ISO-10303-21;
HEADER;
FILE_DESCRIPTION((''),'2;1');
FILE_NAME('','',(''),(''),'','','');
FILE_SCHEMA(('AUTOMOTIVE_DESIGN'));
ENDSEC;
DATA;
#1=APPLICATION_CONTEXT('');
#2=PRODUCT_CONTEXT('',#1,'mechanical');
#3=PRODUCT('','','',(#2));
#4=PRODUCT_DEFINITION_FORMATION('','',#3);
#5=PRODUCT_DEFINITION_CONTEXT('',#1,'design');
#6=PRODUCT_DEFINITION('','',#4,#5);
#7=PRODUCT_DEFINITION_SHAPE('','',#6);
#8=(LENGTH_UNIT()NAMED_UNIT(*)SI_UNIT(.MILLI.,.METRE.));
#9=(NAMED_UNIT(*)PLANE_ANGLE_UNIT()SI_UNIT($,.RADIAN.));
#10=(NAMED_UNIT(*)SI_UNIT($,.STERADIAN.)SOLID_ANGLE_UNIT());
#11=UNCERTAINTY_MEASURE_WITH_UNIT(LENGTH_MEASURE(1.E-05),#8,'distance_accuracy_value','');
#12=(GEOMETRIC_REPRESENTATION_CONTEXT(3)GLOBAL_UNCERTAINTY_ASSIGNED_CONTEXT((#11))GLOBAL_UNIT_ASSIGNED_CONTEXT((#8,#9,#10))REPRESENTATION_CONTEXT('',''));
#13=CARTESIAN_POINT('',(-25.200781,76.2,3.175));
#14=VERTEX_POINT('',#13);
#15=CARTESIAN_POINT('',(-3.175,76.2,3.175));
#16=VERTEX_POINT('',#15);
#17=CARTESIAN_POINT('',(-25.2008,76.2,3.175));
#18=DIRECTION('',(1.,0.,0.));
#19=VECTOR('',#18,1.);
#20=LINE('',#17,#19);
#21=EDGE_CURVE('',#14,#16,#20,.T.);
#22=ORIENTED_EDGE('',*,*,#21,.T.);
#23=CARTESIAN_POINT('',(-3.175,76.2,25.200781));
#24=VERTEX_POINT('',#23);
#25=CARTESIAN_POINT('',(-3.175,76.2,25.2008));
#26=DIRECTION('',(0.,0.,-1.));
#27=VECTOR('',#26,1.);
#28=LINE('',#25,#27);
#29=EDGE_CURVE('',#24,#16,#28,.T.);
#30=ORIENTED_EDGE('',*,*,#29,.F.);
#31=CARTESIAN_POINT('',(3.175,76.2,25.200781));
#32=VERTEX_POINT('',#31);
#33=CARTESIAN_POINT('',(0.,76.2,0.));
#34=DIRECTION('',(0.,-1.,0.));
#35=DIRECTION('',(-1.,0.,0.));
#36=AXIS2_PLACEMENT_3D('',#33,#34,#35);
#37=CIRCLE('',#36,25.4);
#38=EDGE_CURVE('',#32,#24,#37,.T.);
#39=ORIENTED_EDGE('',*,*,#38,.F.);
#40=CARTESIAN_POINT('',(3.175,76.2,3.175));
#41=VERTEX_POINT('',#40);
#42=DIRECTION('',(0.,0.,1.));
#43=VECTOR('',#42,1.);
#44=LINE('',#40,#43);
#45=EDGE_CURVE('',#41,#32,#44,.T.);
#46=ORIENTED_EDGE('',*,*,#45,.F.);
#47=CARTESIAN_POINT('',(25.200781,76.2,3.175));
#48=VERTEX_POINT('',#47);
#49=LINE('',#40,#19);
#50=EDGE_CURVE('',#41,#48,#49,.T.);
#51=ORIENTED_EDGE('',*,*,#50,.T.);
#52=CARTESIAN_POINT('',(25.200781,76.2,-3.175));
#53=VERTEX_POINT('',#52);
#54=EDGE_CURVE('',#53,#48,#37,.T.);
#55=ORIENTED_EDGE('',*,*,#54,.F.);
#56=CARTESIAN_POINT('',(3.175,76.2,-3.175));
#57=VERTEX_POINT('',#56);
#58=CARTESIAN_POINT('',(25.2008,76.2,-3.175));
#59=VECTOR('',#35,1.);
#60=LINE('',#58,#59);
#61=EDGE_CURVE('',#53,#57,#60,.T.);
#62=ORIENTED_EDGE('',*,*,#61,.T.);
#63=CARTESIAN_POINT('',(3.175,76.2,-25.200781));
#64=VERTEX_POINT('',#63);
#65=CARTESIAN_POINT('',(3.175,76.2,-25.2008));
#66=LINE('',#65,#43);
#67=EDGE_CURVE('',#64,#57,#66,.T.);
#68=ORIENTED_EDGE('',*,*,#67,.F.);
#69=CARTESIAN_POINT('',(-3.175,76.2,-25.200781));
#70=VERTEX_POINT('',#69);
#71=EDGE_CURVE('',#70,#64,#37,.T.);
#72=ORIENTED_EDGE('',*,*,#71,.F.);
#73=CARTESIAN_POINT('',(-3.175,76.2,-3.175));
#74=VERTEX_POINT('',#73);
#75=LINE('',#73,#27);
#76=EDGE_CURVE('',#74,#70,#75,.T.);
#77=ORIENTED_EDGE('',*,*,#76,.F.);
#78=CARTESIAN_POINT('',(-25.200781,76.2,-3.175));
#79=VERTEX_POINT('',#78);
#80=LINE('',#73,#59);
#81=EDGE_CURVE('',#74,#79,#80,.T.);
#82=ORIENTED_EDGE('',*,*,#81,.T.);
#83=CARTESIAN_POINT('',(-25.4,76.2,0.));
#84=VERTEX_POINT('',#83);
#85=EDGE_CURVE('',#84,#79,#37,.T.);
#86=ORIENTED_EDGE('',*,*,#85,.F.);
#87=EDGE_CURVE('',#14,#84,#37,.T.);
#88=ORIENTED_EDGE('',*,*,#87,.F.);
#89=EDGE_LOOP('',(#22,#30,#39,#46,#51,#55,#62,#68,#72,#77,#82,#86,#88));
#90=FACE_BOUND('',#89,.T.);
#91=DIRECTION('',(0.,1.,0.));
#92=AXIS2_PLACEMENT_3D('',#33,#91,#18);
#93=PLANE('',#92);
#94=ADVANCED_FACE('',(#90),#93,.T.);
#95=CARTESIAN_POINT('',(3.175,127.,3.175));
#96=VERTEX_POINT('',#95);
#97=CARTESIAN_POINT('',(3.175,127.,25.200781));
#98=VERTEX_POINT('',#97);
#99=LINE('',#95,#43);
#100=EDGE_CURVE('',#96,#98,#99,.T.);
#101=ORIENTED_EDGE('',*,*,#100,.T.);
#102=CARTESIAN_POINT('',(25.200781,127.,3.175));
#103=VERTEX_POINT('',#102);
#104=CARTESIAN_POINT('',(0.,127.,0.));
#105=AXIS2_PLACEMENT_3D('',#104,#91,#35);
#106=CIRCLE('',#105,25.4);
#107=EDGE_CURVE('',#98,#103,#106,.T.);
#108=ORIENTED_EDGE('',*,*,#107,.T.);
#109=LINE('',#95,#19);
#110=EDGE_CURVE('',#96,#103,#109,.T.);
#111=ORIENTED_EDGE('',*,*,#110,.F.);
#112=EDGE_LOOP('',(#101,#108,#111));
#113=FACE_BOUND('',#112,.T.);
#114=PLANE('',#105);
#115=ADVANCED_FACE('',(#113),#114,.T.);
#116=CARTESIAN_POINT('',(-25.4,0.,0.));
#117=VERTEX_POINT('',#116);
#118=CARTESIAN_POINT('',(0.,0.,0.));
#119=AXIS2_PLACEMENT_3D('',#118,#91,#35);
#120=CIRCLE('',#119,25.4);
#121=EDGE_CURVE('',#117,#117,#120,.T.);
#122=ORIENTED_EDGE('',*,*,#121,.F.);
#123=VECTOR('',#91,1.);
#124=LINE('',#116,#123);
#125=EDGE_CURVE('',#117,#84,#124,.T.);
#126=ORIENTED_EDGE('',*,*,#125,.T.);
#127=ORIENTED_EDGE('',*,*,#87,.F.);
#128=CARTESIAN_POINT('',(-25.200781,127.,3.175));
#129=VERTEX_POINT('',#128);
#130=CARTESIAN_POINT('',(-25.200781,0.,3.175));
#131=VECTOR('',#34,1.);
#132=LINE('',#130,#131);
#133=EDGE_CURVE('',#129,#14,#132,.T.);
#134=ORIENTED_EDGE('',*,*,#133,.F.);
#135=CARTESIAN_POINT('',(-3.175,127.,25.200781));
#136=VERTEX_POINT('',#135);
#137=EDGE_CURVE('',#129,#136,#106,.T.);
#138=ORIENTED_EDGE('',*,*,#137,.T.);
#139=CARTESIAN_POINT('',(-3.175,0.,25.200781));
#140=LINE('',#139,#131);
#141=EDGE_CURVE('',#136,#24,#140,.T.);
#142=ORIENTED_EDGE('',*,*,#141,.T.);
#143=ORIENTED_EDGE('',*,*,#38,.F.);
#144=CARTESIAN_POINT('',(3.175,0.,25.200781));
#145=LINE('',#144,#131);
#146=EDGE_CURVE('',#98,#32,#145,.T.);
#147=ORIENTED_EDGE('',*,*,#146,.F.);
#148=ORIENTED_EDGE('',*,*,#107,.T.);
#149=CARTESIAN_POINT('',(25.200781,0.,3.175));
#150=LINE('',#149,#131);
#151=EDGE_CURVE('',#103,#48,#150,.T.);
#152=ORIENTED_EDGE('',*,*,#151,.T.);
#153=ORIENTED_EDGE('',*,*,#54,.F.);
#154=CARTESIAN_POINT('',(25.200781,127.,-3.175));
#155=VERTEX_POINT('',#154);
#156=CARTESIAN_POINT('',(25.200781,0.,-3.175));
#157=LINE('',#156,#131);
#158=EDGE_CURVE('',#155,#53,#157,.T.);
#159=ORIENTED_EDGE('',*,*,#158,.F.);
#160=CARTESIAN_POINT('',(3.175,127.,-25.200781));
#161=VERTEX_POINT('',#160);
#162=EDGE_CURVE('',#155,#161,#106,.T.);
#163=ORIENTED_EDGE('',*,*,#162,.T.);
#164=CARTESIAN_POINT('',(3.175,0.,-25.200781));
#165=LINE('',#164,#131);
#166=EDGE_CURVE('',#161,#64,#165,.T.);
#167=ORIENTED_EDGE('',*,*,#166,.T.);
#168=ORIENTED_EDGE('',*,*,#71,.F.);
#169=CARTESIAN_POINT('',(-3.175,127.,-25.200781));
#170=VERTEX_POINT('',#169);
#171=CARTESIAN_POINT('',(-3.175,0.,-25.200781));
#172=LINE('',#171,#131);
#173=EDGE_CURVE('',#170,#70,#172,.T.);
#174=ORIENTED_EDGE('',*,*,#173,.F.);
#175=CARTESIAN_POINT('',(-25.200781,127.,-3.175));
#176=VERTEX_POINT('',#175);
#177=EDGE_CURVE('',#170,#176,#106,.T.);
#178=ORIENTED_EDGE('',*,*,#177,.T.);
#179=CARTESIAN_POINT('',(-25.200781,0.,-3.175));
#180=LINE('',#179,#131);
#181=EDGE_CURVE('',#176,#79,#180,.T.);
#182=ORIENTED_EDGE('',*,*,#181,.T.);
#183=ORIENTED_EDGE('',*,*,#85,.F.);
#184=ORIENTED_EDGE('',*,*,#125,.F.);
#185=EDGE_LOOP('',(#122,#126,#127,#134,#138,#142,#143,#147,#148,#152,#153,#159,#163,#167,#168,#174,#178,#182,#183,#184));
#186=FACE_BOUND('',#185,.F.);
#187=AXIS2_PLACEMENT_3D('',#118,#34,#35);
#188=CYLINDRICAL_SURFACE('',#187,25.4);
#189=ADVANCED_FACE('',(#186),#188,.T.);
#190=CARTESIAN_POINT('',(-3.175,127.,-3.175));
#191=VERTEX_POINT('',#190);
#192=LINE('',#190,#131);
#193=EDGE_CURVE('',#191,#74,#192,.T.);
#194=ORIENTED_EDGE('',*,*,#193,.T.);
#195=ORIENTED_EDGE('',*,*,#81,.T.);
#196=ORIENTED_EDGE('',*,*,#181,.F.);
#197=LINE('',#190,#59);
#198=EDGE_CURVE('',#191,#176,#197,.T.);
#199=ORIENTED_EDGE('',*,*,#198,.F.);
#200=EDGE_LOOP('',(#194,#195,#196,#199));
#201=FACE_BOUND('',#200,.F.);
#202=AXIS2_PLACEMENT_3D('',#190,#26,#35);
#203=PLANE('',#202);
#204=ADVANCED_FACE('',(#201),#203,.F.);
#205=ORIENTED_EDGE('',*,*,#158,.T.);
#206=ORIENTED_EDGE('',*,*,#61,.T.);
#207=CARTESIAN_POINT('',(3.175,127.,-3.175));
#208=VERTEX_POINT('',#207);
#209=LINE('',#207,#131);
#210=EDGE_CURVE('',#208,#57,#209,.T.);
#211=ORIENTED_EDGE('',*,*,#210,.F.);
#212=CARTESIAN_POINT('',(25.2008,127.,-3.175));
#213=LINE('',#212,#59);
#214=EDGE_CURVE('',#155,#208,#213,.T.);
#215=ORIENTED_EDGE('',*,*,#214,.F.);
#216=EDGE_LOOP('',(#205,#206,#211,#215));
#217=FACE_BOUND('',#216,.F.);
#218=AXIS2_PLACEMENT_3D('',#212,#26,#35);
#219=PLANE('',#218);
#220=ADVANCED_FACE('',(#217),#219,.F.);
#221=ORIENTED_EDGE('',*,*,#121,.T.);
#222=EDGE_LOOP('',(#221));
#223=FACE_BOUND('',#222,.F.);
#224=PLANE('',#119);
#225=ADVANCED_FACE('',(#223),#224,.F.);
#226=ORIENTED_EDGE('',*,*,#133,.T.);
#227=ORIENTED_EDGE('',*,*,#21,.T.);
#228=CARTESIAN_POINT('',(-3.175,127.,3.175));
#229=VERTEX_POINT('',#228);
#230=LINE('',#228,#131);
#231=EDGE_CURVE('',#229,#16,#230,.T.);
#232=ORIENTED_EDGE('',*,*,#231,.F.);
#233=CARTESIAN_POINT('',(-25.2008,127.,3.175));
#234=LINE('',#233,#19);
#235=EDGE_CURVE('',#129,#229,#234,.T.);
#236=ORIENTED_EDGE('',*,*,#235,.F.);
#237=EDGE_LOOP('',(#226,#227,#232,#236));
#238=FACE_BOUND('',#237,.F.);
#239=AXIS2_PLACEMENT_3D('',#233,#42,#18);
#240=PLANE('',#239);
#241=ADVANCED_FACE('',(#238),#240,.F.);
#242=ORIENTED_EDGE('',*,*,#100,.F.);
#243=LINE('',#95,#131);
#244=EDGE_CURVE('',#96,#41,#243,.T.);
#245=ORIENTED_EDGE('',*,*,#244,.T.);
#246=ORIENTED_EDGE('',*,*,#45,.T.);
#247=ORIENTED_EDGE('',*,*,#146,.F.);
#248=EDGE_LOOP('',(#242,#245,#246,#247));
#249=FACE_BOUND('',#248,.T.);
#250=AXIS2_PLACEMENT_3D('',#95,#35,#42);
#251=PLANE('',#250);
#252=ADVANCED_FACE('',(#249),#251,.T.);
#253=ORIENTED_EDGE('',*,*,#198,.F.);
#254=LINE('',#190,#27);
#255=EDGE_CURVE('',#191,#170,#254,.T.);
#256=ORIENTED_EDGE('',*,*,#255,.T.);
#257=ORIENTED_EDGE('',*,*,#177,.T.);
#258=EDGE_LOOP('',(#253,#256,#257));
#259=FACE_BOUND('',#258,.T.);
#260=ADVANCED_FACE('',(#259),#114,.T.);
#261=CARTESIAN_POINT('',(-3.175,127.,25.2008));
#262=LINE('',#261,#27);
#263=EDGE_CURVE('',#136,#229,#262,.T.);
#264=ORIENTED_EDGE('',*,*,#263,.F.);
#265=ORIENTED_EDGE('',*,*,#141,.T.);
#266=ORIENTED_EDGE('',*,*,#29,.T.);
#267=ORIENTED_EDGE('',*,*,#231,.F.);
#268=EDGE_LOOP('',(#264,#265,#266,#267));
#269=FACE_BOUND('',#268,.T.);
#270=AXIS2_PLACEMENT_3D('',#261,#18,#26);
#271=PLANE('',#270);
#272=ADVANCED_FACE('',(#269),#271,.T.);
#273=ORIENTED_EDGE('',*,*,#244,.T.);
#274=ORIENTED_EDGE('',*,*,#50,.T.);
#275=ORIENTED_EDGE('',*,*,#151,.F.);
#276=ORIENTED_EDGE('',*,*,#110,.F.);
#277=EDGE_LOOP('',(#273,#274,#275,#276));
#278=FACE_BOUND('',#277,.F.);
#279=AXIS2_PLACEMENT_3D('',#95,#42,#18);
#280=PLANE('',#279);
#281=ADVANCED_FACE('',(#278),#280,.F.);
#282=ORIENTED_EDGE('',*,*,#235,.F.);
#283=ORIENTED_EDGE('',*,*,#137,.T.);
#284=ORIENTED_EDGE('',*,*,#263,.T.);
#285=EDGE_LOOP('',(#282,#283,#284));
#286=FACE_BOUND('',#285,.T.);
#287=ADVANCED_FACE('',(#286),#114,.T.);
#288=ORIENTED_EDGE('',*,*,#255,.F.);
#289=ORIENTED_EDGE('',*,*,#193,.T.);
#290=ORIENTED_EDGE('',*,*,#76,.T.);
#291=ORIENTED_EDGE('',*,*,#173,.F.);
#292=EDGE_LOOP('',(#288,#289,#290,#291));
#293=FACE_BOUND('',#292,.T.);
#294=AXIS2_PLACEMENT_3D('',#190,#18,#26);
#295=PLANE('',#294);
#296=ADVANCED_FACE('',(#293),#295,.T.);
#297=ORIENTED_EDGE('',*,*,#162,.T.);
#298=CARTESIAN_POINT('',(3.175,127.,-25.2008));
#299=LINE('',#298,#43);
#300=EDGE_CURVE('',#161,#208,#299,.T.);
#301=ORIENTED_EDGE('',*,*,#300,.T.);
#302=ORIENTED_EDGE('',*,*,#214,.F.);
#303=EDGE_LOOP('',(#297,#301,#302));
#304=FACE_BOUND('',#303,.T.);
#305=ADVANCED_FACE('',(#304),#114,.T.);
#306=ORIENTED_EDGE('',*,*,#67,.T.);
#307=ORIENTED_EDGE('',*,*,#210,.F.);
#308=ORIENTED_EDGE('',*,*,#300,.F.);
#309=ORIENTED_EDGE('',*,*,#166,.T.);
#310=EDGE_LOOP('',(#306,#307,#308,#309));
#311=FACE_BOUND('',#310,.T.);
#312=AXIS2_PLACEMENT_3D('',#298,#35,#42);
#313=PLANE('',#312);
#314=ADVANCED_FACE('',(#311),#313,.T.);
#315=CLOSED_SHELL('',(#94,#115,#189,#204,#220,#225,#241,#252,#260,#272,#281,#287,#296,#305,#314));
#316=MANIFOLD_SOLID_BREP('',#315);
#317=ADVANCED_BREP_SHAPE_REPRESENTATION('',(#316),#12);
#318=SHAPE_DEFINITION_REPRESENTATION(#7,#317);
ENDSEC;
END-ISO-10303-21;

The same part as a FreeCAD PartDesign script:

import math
import FreeCAD as App
import Part
import Sketcher
Q = App.Units.Quantity

doc = App.newDocument("Part")
body = doc.addObject("PartDesign::Body", "Body")

# Sketch on XZ plane
sketch1 = body.newObject("Sketcher::SketchObject", "Sketch")
sketch1.AttachmentSupport = (doc.getObject("XZ_Plane"), [""])
sketch1.MapMode = "FlatFace"
sketch1.addGeometry(Part.Circle(App.Vector(0, 0, 0), App.Vector(0, 0, 1), 25), False)
sketch1.addConstraint(Sketcher.Constraint("Coincident", 0, 3, -1, 1))
sketch1.addConstraint(Sketcher.Constraint("Diameter", 0, Q("2 in")))
pad1 = body.newObject("PartDesign::Pad", "Pad")
pad1.Profile = sketch1
pad1.Length = Q("5 in")
pad1.Reversed = True

# Sketch on XZ plane
sketch2 = body.newObject("Sketcher::SketchObject", "Sketch001")
sketch2.AttachmentSupport = (doc.getObject("XZ_Plane"), [""])
sketch2.MapMode = "FlatFace"
sketch2.AttachmentOffset = App.Placement(App.Vector(0, 0, -5 * 25.4), App.Rotation())
sketch2.addGeometry(Part.LineSegment(App.Vector(-3, 3, 0), App.Vector(-3, 25, 0)), False)
sketch2.addGeometry(Part.ArcOfCircle(Part.Circle(App.Vector(0, 0, 0), App.Vector(0, 0, 1), 25), math.radians(82.82), math.radians(97.18)), False)
sketch2.addGeometry(Part.LineSegment(App.Vector(3, 25, 0), App.Vector(3, 3, 0)), False)
sketch2.addGeometry(Part.LineSegment(App.Vector(3, 3, 0), App.Vector(25, 3, 0)), False)
sketch2.addGeometry(Part.ArcOfCircle(Part.Circle(App.Vector(0, 0, 0), App.Vector(0, 0, 1), 25), math.radians(-7.18), math.radians(7.18)), False)
sketch2.addGeometry(Part.LineSegment(App.Vector(25, -3, 0), App.Vector(3, -3, 0)), False)
sketch2.addGeometry(Part.LineSegment(App.Vector(3, -3, 0), App.Vector(3, -25, 0)), False)
sketch2.addGeometry(Part.ArcOfCircle(Part.Circle(App.Vector(0, 0, 0), App.Vector(0, 0, 1), 25), math.radians(-97.18), math.radians(-82.82)), False)
sketch2.addGeometry(Part.LineSegment(App.Vector(-3, -25, 0), App.Vector(-3, -3, 0)), False)
sketch2.addGeometry(Part.LineSegment(App.Vector(-3, -3, 0), App.Vector(-25, -3, 0)), False)
sketch2.addGeometry(Part.ArcOfCircle(Part.Circle(App.Vector(0, 0, 0), App.Vector(0, 0, 1), 25), math.radians(172.82), math.radians(187.18)), False)
sketch2.addGeometry(Part.LineSegment(App.Vector(-25, 3, 0), App.Vector(-3, 3, 0)), False)
sketch2.addConstraint(Sketcher.Constraint("Coincident", 0, 2, 1, 2))
sketch2.addConstraint(Sketcher.Constraint("Coincident", 1, 1, 2, 1))
sketch2.addConstraint(Sketcher.Constraint("Coincident", 2, 2, 3, 1))
sketch2.addConstraint(Sketcher.Constraint("Coincident", 3, 2, 4, 2))
sketch2.addConstraint(Sketcher.Constraint("Coincident", 4, 1, 5, 1))
sketch2.addConstraint(Sketcher.Constraint("Coincident", 5, 2, 6, 1))
sketch2.addConstraint(Sketcher.Constraint("Coincident", 6, 2, 7, 2))
sketch2.addConstraint(Sketcher.Constraint("Coincident", 7, 1, 8, 1))
sketch2.addConstraint(Sketcher.Constraint("Coincident", 8, 2, 9, 1))
sketch2.addConstraint(Sketcher.Constraint("Coincident", 9, 2, 10, 2))
sketch2.addConstraint(Sketcher.Constraint("Coincident", 10, 1, 11, 1))
sketch2.addConstraint(Sketcher.Constraint("Coincident", 11, 2, 0, 1))
sketch2.addConstraint(Sketcher.Constraint("Vertical", 0))
sketch2.addConstraint(Sketcher.Constraint("Vertical", 2))
sketch2.addConstraint(Sketcher.Constraint("Horizontal", 3))
sketch2.addConstraint(Sketcher.Constraint("Horizontal", 5))
sketch2.addConstraint(Sketcher.Constraint("Vertical", 6))
sketch2.addConstraint(Sketcher.Constraint("Vertical", 8))
sketch2.addConstraint(Sketcher.Constraint("Horizontal", 9))
sketch2.addConstraint(Sketcher.Constraint("Horizontal", 11))
sketch2.addConstraint(Sketcher.Constraint("Coincident", 1, 3, -1, 1))
sketch2.addConstraint(Sketcher.Constraint("Coincident", 4, 3, -1, 1))
sketch2.addConstraint(Sketcher.Constraint("Coincident", 7, 3, -1, 1))
sketch2.addConstraint(Sketcher.Constraint("Coincident", 10, 3, -1, 1))
sketch2.addConstraint(Sketcher.Constraint("Equal", 1, 4))
sketch2.addConstraint(Sketcher.Constraint("Equal", 4, 7))
sketch2.addConstraint(Sketcher.Constraint("Equal", 7, 10))
sketch2.addConstraint(Sketcher.Constraint("Symmetric", 2, 2, 8, 2, -1, 1))
sketch2.addConstraint(Sketcher.Constraint("Symmetric", 5, 2, 11, 2, -1, 1))
sketch2.addConstraint(Sketcher.Constraint("Symmetric", 5, 2, 8, 2, -2))
sketch2.addConstraint(Sketcher.Constraint("Equal", 11, 0))
sketch2.addConstraint(Sketcher.Constraint("Radius", 1, Q("1 in")))
sketch2.addConstraint(Sketcher.Constraint("DistanceX", 0, 2, 1, 1, Q("0.25 in")))
pocket1 = body.newObject("PartDesign::Pocket", "Pocket")
pocket1.Profile = sketch2
pocket1.Length = Q("2 in")
pocket1.Reversed = True

doc.recompute()
